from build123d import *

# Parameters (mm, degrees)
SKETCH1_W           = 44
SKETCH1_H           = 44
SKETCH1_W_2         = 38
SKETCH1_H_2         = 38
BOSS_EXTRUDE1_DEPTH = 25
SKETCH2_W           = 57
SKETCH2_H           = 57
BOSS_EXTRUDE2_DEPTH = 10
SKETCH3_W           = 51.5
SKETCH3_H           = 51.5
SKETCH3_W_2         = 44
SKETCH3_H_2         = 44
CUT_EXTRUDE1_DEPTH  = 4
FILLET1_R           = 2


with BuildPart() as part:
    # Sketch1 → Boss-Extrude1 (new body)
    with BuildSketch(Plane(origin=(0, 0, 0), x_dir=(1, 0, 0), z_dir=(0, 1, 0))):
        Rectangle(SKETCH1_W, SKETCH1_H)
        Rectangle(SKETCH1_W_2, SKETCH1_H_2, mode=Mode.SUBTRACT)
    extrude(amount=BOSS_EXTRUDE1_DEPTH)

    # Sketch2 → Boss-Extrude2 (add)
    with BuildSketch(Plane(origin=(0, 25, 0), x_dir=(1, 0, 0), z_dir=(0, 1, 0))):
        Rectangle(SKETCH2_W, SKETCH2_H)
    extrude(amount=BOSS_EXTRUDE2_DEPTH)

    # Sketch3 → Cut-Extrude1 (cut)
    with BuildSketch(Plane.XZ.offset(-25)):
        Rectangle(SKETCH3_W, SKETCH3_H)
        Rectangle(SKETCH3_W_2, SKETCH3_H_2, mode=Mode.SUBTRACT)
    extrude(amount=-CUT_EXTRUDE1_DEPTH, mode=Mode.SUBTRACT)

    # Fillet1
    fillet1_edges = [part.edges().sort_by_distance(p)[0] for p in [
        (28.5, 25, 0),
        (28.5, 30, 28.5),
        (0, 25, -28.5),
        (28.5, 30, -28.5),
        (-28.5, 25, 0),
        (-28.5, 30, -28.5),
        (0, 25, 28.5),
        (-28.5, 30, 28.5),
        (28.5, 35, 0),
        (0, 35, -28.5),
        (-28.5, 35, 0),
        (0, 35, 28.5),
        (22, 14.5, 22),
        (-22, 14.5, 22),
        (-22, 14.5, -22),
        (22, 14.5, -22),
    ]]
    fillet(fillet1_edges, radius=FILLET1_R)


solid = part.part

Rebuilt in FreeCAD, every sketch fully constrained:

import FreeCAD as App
import Part
import Sketcher


def edges_at(feature, points):
    """Names of the edges that pass closest to the given points."""
    edges = feature.Shape.Edges
    near = lambda p: min(range(len(edges)), key=lambda i: edges[i].distToShape(Part.Vertex(*p))[0])
    return sorted({f"Edge{near(p) + 1}" for p in points})

doc = App.newDocument("Part")
body = doc.addObject("PartDesign::Body", "Body")

sketch1 = doc.addObject("Sketcher::SketchObject", "Sketch")
body.addObject(sketch1)
sketch1.AttachmentSupport = (doc.XZ_Plane, [""])
sketch1.MapMode = "FlatFace"
sketch1.addGeometry([
    Part.LineSegment(App.Vector(-22, -22, 0), App.Vector(-22, 22, 0)),
    Part.LineSegment(App.Vector(-22, 22, 0), App.Vector(22, 22, 0)),
    Part.LineSegment(App.Vector(22, 22, 0), App.Vector(22, -22, 0)),
    Part.LineSegment(App.Vector(22, -22, 0), App.Vector(-22, -22, 0)),
    Part.LineSegment(App.Vector(19, 19, 0), App.Vector(-19, 19, 0)),
    Part.LineSegment(App.Vector(-19, 19, 0), App.Vector(-19, -19, 0)),
    Part.LineSegment(App.Vector(-19, -19, 0), App.Vector(19, -19, 0)),
    Part.LineSegment(App.Vector(19, -19, 0), App.Vector(19, 19, 0)),
], False)
sketch1.addConstraint([
    Sketcher.Constraint("Coincident", 0, 2, 1, 1),
    Sketcher.Constraint("Coincident", 1, 2, 2, 1),
    Sketcher.Constraint("Coincident", 2, 2, 3, 1),
    Sketcher.Constraint("Coincident", 3, 2, 0, 1),
    Sketcher.Constraint("Coincident", 4, 2, 5, 1),
    Sketcher.Constraint("Coincident", 5, 2, 6, 1),
    Sketcher.Constraint("Coincident", 6, 2, 7, 1),
    Sketcher.Constraint("Coincident", 7, 2, 4, 1),
    Sketcher.Constraint("Vertical", 0),
    Sketcher.Constraint("Horizontal", 1),
    Sketcher.Constraint("Vertical", 2),
    Sketcher.Constraint("Horizontal", 3),
    Sketcher.Constraint("Horizontal", 4),
    Sketcher.Constraint("Vertical", 5),
    Sketcher.Constraint("Horizontal", 6),
    Sketcher.Constraint("Vertical", 7),
    Sketcher.Constraint("Symmetric", 0, 2, 2, 2, -1, 1),
    Sketcher.Constraint("Symmetric", 4, 2, 6, 2, -1, 1),
    Sketcher.Constraint("Equal", 3, 0),
    Sketcher.Constraint("Equal", 6, 5),
    Sketcher.Constraint("DistanceX", 1, 1, 1, 2, 44.0),
    Sketcher.Constraint("DistanceX", 4, 2, 4, 1, 38.0),
])
pad1 = doc.addObject("PartDesign::Pad", "Pad")
body.addObject(pad1)
pad1.Profile = sketch1
pad1.Length = 25
pad1.Reversed = True

sketch2 = doc.addObject("Sketcher::SketchObject", "Sketch001")
body.addObject(sketch2)
sketch2.AttachmentSupport = (doc.XZ_Plane, [""])
sketch2.MapMode = "FlatFace"
sketch2.AttachmentOffset = App.Placement(App.Vector(0, 0, -25), App.Rotation())
sketch2.addGeometry([
    Part.LineSegment(App.Vector(-28, -28, 0), App.Vector(-28, 28, 0)),
    Part.LineSegment(App.Vector(-28, 28, 0), App.Vector(28, 28, 0)),
    Part.LineSegment(App.Vector(28, 28, 0), App.Vector(28, -28, 0)),
    Part.LineSegment(App.Vector(28, -28, 0), App.Vector(-28, -28, 0)),
], False)
sketch2.addConstraint([
    Sketcher.Constraint("Coincident", 0, 2, 1, 1),
    Sketcher.Constraint("Coincident", 1, 2, 2, 1),
    Sketcher.Constraint("Coincident", 2, 2, 3, 1),
    Sketcher.Constraint("Coincident", 3, 2, 0, 1),
    Sketcher.Constraint("Vertical", 0),
    Sketcher.Constraint("Horizontal", 1),
    Sketcher.Constraint("Vertical", 2),
    Sketcher.Constraint("Horizontal", 3),
    Sketcher.Constraint("Symmetric", 0, 2, 2, 2, -1, 1),
    Sketcher.Constraint("Equal", 3, 0),
    Sketcher.Constraint("DistanceX", 1, 1, 1, 2, 57.0),
])
pad2 = doc.addObject("PartDesign::Pad", "Pad001")
body.addObject(pad2)
pad2.Profile = sketch2
pad2.Length = 10
pad2.Reversed = True

sketch3 = doc.addObject("Sketcher::SketchObject", "Sketch002")
body.addObject(sketch3)
sketch3.AttachmentSupport = (doc.XZ_Plane, [""])
sketch3.MapMode = "FlatFace"
sketch3.AttachmentOffset = App.Placement(App.Vector(0, 0, -25), App.Rotation())
sketch3.addGeometry([
    Part.LineSegment(App.Vector(-26, 26, 0), App.Vector(-26, -26, 0)),
    Part.LineSegment(App.Vector(-26, -26, 0), App.Vector(26, -26, 0)),
    Part.LineSegment(App.Vector(26, -26, 0), App.Vector(26, 26, 0)),
    Part.LineSegment(App.Vector(26, 26, 0), App.Vector(-26, 26, 0)),
    Part.LineSegment(App.Vector(22, -22, 0), App.Vector(-22, -22, 0)),
    Part.LineSegment(App.Vector(-22, -22, 0), App.Vector(-22, 22, 0)),
    Part.LineSegment(App.Vector(-22, 22, 0), App.Vector(22, 22, 0)),
    Part.LineSegment(App.Vector(22, 22, 0), App.Vector(22, -22, 0)),
], False)
sketch3.addConstraint([
    Sketcher.Constraint("Coincident", 0, 2, 1, 1),
    Sketcher.Constraint("Coincident", 1, 2, 2, 1),
    Sketcher.Constraint("Coincident", 2, 2, 3, 1),
    Sketcher.Constraint("Coincident", 3, 2, 0, 1),
    Sketcher.Constraint("Coincident", 4, 2, 5, 1),
    Sketcher.Constraint("Coincident", 5, 2, 6, 1),
    Sketcher.Constraint("Coincident", 6, 2, 7, 1),
    Sketcher.Constraint("Coincident", 7, 2, 4, 1),
    Sketcher.Constraint("Vertical", 0),
    Sketcher.Constraint("Horizontal", 1),
    Sketcher.Constraint("Vertical", 2),
    Sketcher.Constraint("Horizontal", 3),
    Sketcher.Constraint("Horizontal", 4),
    Sketcher.Constraint("Vertical", 5),
    Sketcher.Constraint("Horizontal", 6),
    Sketcher.Constraint("Vertical", 7),
    Sketcher.Constraint("Symmetric", 0, 2, 2, 2, -1, 1),
    Sketcher.Constraint("Symmetric", 4, 2, 6, 2, -1, 1),
    Sketcher.Constraint("Equal", 3, 0),
    Sketcher.Constraint("Equal", 6, 5),
    Sketcher.Constraint("DistanceX", 4, 2, 4, 1, 44.0),
    Sketcher.Constraint("DistanceX", 1, 1, 1, 2, 51.5),
])
pocket1 = doc.addObject("PartDesign::Pocket", "Pocket")
body.addObject(pocket1)
pocket1.Profile = sketch3
pocket1.Length = 4
doc.recompute()

fillet = doc.addObject("PartDesign::Fillet", "Fillet")
body.addObject(fillet)
fillet.Base = (pocket1, edges_at(pocket1, [
    (28.5, 25, 0),
    (28.5, 30, 28.5),
    (0, 25, -28.5),
    (28.5, 30, -28.5),
    (-28.5, 25, 0),
    (-28.5, 30, -28.5),
    (0, 25, 28.5),
    (-28.5, 30, 28.5),
    (28.5, 35, 0),
    (0, 35, -28.5),
    (-28.5, 35, 0),
    (0, 35, 28.5),
    (22, 14.5, 22),
    (-22, 14.5, 22),
    (-22, 14.5, -22),
    (22, 14.5, -22),
]))
fillet.Radius = 2

doc.recompute()
